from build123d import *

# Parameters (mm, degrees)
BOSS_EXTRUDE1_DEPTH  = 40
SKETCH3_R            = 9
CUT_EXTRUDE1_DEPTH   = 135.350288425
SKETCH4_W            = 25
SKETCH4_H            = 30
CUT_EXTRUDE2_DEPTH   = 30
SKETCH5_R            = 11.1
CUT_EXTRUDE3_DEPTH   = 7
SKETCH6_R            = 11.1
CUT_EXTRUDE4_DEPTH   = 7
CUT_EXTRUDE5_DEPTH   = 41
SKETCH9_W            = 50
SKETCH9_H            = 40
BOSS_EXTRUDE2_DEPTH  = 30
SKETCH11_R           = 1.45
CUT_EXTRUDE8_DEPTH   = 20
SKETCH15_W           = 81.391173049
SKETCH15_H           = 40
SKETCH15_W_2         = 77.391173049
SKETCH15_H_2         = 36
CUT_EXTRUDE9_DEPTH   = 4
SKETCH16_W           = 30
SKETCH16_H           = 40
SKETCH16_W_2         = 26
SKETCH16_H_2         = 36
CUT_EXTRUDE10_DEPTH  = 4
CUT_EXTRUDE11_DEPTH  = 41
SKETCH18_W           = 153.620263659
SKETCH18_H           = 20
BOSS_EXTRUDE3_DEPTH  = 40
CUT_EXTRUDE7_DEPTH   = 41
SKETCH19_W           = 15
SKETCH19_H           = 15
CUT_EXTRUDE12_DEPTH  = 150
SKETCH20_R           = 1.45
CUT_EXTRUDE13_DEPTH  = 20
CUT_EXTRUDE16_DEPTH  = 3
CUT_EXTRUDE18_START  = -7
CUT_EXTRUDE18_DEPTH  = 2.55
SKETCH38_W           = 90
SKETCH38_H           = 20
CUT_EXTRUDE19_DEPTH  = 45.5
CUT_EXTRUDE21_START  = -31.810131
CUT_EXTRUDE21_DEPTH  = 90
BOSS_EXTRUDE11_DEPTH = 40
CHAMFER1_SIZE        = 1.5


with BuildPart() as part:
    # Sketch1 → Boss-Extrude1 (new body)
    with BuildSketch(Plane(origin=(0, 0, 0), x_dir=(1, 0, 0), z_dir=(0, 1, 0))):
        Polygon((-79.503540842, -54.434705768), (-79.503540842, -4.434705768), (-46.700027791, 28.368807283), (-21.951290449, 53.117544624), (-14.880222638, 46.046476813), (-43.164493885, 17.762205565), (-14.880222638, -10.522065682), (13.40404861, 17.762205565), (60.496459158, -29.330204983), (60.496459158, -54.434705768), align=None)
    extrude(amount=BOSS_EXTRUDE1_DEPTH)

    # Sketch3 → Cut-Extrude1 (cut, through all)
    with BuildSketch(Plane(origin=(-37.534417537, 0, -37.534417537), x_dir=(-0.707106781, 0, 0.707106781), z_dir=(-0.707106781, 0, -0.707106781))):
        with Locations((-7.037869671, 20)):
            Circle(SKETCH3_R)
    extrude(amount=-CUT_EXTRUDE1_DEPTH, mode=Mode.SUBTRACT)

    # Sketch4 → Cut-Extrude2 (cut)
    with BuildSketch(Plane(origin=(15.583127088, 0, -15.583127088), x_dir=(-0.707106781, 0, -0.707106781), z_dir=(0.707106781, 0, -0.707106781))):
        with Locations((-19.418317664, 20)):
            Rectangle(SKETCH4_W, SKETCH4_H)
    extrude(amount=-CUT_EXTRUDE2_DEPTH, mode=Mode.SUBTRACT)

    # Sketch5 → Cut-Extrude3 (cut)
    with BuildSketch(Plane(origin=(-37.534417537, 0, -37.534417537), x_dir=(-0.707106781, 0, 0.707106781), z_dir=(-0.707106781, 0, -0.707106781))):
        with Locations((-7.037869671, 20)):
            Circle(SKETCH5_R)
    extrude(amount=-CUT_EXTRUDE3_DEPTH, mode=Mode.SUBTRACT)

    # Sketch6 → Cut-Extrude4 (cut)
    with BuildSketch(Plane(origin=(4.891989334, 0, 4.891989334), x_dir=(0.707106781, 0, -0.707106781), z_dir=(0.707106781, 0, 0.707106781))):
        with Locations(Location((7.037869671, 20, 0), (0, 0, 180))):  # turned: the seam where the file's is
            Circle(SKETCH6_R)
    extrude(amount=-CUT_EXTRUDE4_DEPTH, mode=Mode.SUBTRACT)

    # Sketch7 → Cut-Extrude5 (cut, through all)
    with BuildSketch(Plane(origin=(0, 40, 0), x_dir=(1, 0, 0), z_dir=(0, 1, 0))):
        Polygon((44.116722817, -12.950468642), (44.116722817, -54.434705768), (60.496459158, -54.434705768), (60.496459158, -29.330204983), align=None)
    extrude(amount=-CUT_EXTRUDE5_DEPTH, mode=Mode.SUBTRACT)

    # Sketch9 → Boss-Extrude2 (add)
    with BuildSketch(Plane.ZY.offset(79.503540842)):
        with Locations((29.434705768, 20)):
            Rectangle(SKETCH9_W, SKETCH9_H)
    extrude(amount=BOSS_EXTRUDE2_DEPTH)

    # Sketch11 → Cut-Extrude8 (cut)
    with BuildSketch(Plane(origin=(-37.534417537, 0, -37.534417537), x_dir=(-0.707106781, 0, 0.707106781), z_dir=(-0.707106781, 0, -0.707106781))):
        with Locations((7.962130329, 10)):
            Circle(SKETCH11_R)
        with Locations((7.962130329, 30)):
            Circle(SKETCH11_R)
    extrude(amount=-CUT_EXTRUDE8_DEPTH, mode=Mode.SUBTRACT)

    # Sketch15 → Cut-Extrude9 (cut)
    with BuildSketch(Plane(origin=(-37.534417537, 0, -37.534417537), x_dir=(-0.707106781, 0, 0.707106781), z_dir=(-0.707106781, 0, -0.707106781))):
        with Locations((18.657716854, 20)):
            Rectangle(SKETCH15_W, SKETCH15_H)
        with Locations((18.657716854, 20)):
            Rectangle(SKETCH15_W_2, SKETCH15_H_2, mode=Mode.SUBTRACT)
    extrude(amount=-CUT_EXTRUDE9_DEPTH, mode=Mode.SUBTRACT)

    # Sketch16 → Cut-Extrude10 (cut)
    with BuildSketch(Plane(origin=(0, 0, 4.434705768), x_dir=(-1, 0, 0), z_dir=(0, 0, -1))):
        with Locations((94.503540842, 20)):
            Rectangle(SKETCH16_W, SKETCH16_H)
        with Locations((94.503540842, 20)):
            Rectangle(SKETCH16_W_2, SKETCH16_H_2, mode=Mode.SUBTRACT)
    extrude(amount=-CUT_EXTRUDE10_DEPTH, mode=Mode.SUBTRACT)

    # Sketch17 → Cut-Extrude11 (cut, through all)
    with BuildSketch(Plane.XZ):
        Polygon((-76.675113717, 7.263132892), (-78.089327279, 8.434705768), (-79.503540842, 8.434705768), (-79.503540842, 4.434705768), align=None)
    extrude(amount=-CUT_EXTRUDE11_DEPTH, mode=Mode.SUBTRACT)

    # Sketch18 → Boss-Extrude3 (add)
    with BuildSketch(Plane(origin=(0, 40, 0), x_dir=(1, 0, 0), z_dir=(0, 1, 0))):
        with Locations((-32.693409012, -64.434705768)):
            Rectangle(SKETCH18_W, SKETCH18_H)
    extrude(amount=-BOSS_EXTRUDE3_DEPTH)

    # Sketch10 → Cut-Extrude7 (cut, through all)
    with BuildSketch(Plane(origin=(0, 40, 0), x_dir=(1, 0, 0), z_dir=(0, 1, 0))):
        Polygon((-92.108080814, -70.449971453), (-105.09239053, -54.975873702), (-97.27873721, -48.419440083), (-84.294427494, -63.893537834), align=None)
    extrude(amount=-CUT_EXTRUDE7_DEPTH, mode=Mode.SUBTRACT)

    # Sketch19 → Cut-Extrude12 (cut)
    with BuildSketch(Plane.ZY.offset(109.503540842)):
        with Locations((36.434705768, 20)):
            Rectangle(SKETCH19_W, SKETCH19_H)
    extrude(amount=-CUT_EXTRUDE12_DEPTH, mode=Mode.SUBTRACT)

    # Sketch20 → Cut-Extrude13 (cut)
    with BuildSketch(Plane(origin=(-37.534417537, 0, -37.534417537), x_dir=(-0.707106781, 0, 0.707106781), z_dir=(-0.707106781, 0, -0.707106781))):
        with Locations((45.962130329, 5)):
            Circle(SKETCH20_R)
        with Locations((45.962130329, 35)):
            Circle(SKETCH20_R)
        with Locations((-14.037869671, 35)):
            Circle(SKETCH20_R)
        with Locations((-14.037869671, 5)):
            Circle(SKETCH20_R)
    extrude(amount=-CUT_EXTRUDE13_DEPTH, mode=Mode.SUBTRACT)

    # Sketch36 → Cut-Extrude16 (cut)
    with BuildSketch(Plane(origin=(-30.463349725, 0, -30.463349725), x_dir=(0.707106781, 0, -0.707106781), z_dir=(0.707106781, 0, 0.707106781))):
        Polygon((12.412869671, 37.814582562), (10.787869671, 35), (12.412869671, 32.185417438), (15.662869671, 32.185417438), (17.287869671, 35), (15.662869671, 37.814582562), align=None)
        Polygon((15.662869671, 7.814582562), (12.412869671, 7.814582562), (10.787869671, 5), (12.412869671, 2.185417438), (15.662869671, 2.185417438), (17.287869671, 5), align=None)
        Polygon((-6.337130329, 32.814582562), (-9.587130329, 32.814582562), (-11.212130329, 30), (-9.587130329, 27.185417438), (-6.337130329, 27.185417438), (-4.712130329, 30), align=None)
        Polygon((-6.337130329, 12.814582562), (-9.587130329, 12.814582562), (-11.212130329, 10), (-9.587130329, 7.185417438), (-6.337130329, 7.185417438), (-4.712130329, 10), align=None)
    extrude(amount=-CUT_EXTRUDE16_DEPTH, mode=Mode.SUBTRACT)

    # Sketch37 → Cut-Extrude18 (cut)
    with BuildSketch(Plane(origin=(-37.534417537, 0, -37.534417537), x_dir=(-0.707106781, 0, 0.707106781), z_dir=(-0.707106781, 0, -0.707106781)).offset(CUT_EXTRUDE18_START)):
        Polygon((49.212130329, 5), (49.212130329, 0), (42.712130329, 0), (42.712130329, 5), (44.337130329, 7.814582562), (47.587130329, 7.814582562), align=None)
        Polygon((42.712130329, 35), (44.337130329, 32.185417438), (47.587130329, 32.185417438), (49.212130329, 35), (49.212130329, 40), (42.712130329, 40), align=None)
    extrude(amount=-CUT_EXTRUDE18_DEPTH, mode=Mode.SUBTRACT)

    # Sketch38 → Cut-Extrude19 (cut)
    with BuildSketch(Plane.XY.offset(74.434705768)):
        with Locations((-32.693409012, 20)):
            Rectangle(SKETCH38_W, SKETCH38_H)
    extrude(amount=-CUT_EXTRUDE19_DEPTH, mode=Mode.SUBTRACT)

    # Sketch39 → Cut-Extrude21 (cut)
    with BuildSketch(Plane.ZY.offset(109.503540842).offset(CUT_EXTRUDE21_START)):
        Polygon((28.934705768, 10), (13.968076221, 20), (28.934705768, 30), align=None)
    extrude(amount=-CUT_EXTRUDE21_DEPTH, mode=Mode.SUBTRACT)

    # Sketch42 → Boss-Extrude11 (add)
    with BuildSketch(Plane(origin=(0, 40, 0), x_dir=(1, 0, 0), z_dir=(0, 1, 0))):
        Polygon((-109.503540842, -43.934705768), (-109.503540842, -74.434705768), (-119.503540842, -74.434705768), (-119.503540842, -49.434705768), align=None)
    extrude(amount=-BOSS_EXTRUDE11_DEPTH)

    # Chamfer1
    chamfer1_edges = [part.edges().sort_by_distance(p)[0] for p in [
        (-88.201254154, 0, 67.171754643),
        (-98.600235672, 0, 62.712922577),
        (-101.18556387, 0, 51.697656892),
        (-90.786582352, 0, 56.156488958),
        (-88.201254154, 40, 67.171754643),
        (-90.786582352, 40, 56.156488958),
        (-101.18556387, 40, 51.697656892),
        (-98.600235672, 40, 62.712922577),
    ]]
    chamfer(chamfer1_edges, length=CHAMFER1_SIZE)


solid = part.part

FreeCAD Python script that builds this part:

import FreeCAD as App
import Part
import Sketcher

V = App.Vector
Q = App.Units.Quantity


def edges_at(feature, points):
    """Names of the edges that pass closest to the given points."""
    edges = feature.Shape.Edges
    near = lambda p: min(range(len(edges)), key=lambda i: edges[i].distToShape(Part.Vertex(*p))[0])
    return sorted({f"Edge{near(p) + 1}" for p in points})

doc = App.newDocument("Part")
params = doc.addObject("Spreadsheet::Sheet", "Params")
for row, (alias, value) in enumerate([
    ("sketch1_width", "140 mm"),
    ("sketch1_height", "50 mm"),
    ("sketch1_length", "40 mm"),
    ("sketch1_length2", "10 mm"),
    ("sketch1_length3", "35 mm"),
    ("pad1_length", "40 mm"),
    ("sketch2_diameter", "18 mm"),
    ("sketch3_width", "25 mm"),
    ("sketch3_height", "30 mm"),
    ("pocket2_length", "30 mm"),
    ("sketch4_diameter", "22.2 mm"),
    ("pocket3_length", "7 mm"),
    ("sketch5_diameter", "22.2 mm"),
    ("pocket4_length", "7 mm"),
    ("sketch7_width", "40 mm"),
    ("sketch7_height", "50 mm"),
    ("pad2_length", "30 mm"),
    ("sketch8_diameter", "2.9 mm"),
    ("pocket6_length", "20 mm"),
    ("sketch9_height", "40 mm"),
    ("sketch9_height2", "36 mm"),
    ("pocket7_length", "4 mm"),
    ("sketch10_width", "30 mm"),
    ("sketch10_width2", "26 mm"),
    ("sketch10_height", "40 mm"),
    ("sketch10_height2", "36 mm"),
    ("pocket8_length", "4 mm"),
    ("sketch11_height", "4 mm"),
    ("sketch11_length", "4 mm"),
    ("sketch12_height", "20 mm"),
    ("pad3_length", "40 mm"),
    ("sketch13_length", "20.2 mm"),
    ("sketch13_length2", "10.2 mm"),
    ("sketch14_width", "15 mm"),
    ("pocket11_length", "150 mm"),
    ("sketch15_diameter", "2.9 mm"),
    ("pocket12_length", "20 mm"),
    ("sketch16_width", "3.25 mm"),
    ("pocket13_length", "3 mm"),
    ("sketch17_height", "5 mm"),
    ("sketch17_width", "6.5 mm"),
    ("sketch17_width2", "3.25 mm"),
    ("pocket14_length", "2.55 mm"),
    ("sketch18_width", "90 mm"),
    ("sketch18_height", "20 mm"),
    ("pocket15_length", "45.5 mm"),
    ("sketch19_width", "20 mm"),
    ("sketch19_length", "18 mm"),
    ("pocket16_length", "90 mm"),
    ("sketch20_width", "10 mm"),
    ("sketch20_height", "25 mm"),
    ("sketch20_height2", "30.5 mm"),
    ("pad4_length", "40 mm"),
    ("chamfer_size", "1.5 mm"),
], start=1):
    params.set(f"A{row}", alias)
    params.set(f"B{row}", "=" + value)
    params.setAlias(f"B{row}", alias)

body = doc.addObject("PartDesign::Body", "Body")

# Sketch on XZ plane
sketch1 = doc.addObject("Sketcher::SketchObject", "Sketch")
body.addObject(sketch1)
sketch1.AttachmentSupport = (doc.XZ_Plane, [""])
sketch1.MapMode = "FlatFace"
sketch1.addGeometry(Part.LineSegment(V(-79.503541, 4.434706, 0), V(-79.503541, 54.434706, 0)), False)
sketch1.addGeometry(Part.LineSegment(V(-79.503541, 54.434706, 0), V(60.496459, 54.434706, 0)), False)
sketch1.addGeometry(Part.LineSegment(V(60.496459, 54.434706, 0), V(60.496459, 29.330205, 0)), False)
sketch1.addGeometry(Part.LineSegment(V(60.496459, 29.330205, 0), V(13.404049, -17.762206, 0)), False)
sketch1.addGeometry(Part.LineSegment(V(13.404049, -17.762206, 0), V(-14.880223, 10.522066, 0)), False)
sketch1.addGeometry(Part.LineSegment(V(-14.880223, 10.522066, 0), V(-43.164494, -17.762206, 0)), False)
sketch1.addGeometry(Part.LineSegment(V(-43.164494, -17.762206, 0), V(-14.880223, -46.046477, 0)), False)
sketch1.addGeometry(Part.LineSegment(V(-14.880223, -46.046477, 0), V(-21.95129, -53.117545, 0)), False)
sketch1.addGeometry(Part.LineSegment(V(-21.95129, -53.117545, 0), V(-46.700028, -28.368807, 0)), False)
sketch1.addGeometry(Part.LineSegment(V(-46.700028, -28.368807, 0), V(-79.503541, 4.434706, 0)), False)
sketch1.addConstraint(Sketcher.Constraint("Coincident", 0, 2, 1, 1))
sketch1.addConstraint(Sketcher.Constraint("Coincident", 1, 2, 2, 1))
sketch1.addConstraint(Sketcher.Constraint("Coincident", 2, 2, 3, 1))
sketch1.addConstraint(Sketcher.Constraint("Coincident", 3, 2, 4, 1))
sketch1.addConstraint(Sketcher.Constraint("Coincident", 4, 2, 5, 1))
sketch1.addConstraint(Sketcher.Constraint("Coincident", 5, 2, 6, 1))
sketch1.addConstraint(Sketcher.Constraint("Coincident", 6, 2, 7, 1))
sketch1.addConstraint(Sketcher.Constraint("Coincident", 7, 2, 8, 1))
sketch1.addConstraint(Sketcher.Constraint("Coincident", 8, 2, 9, 1))
sketch1.addConstraint(Sketcher.Constraint("Coincident", 9, 2, 0, 1))
sketch1.addConstraint(Sketcher.Constraint("Vertical", 0))
sketch1.addConstraint(Sketcher.Constraint("Horizontal", 1))
sketch1.addConstraint(Sketcher.Constraint("Vertical", 2))
sketch1.addConstraint(Sketcher.Constraint("Perpendicular", 3, 4))
sketch1.addConstraint(Sketcher.Constraint("Perpendicular", 4, 5))
sketch1.addConstraint(Sketcher.Constraint("Perpendicular", 5, 6))
sketch1.addConstraint(Sketcher.Constraint("Perpendicular", 6, 7))
sketch1.addConstraint(Sketcher.Constraint("Perpendicular", 7, 8))
sketch1.addConstraint(Sketcher.Constraint("Parallel", 8, 9))
sketch1.addConstraint(Sketcher.Constraint("Horizontal", 3, 2, 5, 2))
sketch1.addConstraint(Sketcher.Constraint("Vertical", 4, 2, 6, 2))
sketch1.addConstraint(Sketcher.Constraint("Equal", 4, 5))
sketch1.addConstraint(Sketcher.Constraint("DistanceX", 1, 1, 1, 2, Q("140 mm")))
sketch1.addConstraint(Sketcher.Constraint("DistanceY", 0, 1, 0, 2, Q("50 mm")))
sketch1.addConstraint(Sketcher.Constraint("Distance", 4, Q("40 mm")))
sketch1.addConstraint(Sketcher.Constraint("Distance", 7, Q("10 mm")))
sketch1.addConstraint(Sketcher.Constraint("Distance", 8, Q("35 mm")))
sketch1.addConstraint(Sketcher.Constraint("DistanceY", 2, 2, 2, 1, Q("25.104501 mm")))
sketch1.addConstraint(Sketcher.Constraint("DistanceX", 0, 2, -1, 1, Q("79.503541 mm")))
sketch1.addConstraint(Sketcher.Constraint("DistanceY", -1, 1, 0, 2, Q("54.434706 mm")))
sketch1.setExpression("Constraints[22]", "Params.sketch1_width")
sketch1.setExpression("Constraints[23]", "Params.sketch1_height")
sketch1.setExpression("Constraints[24]", "Params.sketch1_length")
sketch1.setExpression("Constraints[25]", "Params.sketch1_length2")
sketch1.setExpression("Constraints[26]", "Params.sketch1_length3")
pad1 = doc.addObject("PartDesign::Pad", "Pad")
body.addObject(pad1)
pad1.Profile = sketch1
pad1.setExpression("Length", "Params.pad1_length")
pad1.Reversed = True

# Sketch on an angled plane
sketch2 = doc.addObject("Sketcher::SketchObject", "Sketch001")
body.addObject(sketch2)
sketch2.Placement = App.Placement(V(-37.534418, 0, -37.534418), App.Rotation(V(-0.707106781, 0, 0.707106781), V(0, 0.999999999, 0), V(-0.707106781, 0, -0.707106781), "ZXY"))
sketch2.addGeometry(Part.Circle(V(-7.03787, 20, 0), V(0, 0, 1), 9), False)
sketch2.addConstraint(Sketcher.Constraint("Diameter", 0, Q("18 mm")))
sketch2.addConstraint(Sketcher.Constraint("DistanceY", -1, 1, 0, 3, Q("20 mm")))
sketch2.addConstraint(Sketcher.Constraint("DistanceX", 0, 3, -1, 1, Q("7.03787 mm")))
sketch2.setExpression("Constraints[0]", "Params.sketch2_diameter")
pocket1 = doc.addObject("PartDesign::Pocket", "Pocket")
body.addObject(pocket1)
pocket1.Profile = sketch2
pocket1.Type = "ThroughAll"

# Sketch on an angled plane
sketch3 = doc.addObject("Sketcher::SketchObject", "Sketch002")
body.addObject(sketch3)
sketch3.Placement = App.Placement(V(15.583127, 0, -15.583127), App.Rotation(V(-0.707106781, 0, -0.707106781), V(0, 0.999999999, 0), V(0.707106781, 0, -0.707106781), "ZXY"))
sketch3.addGeometry(Part.LineSegment(V(-31.918318, 35, 0), V(-31.918318, 5, 0)), False)
sketch3.addGeometry(Part.LineSegment(V(-31.918318, 5, 0), V(-6.918318, 5, 0)), False)
sketch3.addGeometry(Part.LineSegment(V(-6.918318, 5, 0), V(-6.918318, 35, 0)), False)
sketch3.addGeometry(Part.LineSegment(V(-6.918318, 35, 0), V(-31.918318, 35, 0)), False)
sketch3.addConstraint(Sketcher.Constraint("Coincident", 0, 2, 1, 1))
sketch3.addConstraint(Sketcher.Constraint("Coincident", 1, 2, 2, 1))
sketch3.addConstraint(Sketcher.Constraint("Coincident", 2, 2, 3, 1))
sketch3.addConstraint(Sketcher.Constraint("Coincident", 3, 2, 0, 1))
sketch3.addConstraint(Sketcher.Constraint("Vertical", 0))
sketch3.addConstraint(Sketcher.Constraint("Horizontal", 1))
sketch3.addConstraint(Sketcher.Constraint("Vertical", 2))
sketch3.addConstraint(Sketcher.Constraint("Horizontal", 3))
sketch3.addConstraint(Sketcher.Constraint("DistanceX", 1, 1, 1, 2, Q("25 mm")))
sketch3.addConstraint(Sketcher.Constraint("DistanceY", 0, 2, 0, 1, Q("30 mm")))
sketch3.addConstraint(Sketcher.Constraint("DistanceY", -1, 1, 0, 2, Q("5 mm")))
sketch3.addConstraint(Sketcher.Constraint("DistanceX", 0, 2, -1, 1, Q("31.918318 mm")))
sketch3.setExpression("Constraints[8]", "Params.sketch3_width")
sketch3.setExpression("Constraints[9]", "Params.sketch3_height")
pocket2 = doc.addObject("PartDesign::Pocket", "Pocket001")
body.addObject(pocket2)
pocket2.Profile = sketch3
pocket2.setExpression("Length", "Params.pocket2_length")

# Sketch on an angled plane
sketch4 = doc.addObject("Sketcher::SketchObject", "Sketch003")
body.addObject(sketch4)
sketch4.Placement = App.Placement(V(-37.534418, 0, -37.534418), App.Rotation(V(-0.707106781, 0, 0.707106781), V(0, 0.999999999, 0), V(-0.707106781, 0, -0.707106781), "ZXY"))
sketch4.addGeometry(Part.Circle(V(-7.03787, 20, 0), V(0, 0, 1), 11.1), False)
sketch4.addConstraint(Sketcher.Constraint("Diameter", 0, Q("22.2 mm")))
sketch4.addConstraint(Sketcher.Constraint("DistanceY", -1, 1, 0, 3, Q("20 mm")))
sketch4.addConstraint(Sketcher.Constraint("DistanceX", 0, 3, -1, 1, Q("7.03787 mm")))
sketch4.setExpression("Constraints[0]", "Params.sketch4_diameter")
pocket3 = doc.addObject("PartDesign::Pocket", "Pocket002")
body.addObject(pocket3)
pocket3.Profile = sketch4
pocket3.setExpression("Length", "Params.pocket3_length")

# Sketch on an angled plane
sketch5 = doc.addObject("Sketcher::SketchObject", "Sketch004")
body.addObject(sketch5)
sketch5.Placement = App.Placement(V(4.891989, 0, 4.891989), App.Rotation(V(0.707106781, 0, -0.707106781), V(0, 0.999999999, 0), V(0.707106781, 0, 0.707106781), "ZXY"))
sketch5.addGeometry(Part.Circle(V(7.03787, 20, 0), V(0, 0, 1), 11.1), False)
sketch5.addConstraint(Sketcher.Constraint("Diameter", 0, Q("22.2 mm")))
sketch5.addConstraint(Sketcher.Constraint("DistanceY", -1, 1, 0, 3, Q("20 mm")))
sketch5.addConstraint(Sketcher.Constraint("DistanceX", -1, 1, 0, 3, Q("7.03787 mm")))
sketch5.setExpression("Constraints[0]", "Params.sketch5_diameter")
pocket4 = doc.addObject("PartDesign::Pocket", "Pocket003")
body.addObject(pocket4)
pocket4.Profile = sketch5
pocket4.setExpression("Length", "Params.pocket4_length")

# Sketch on XZ plane
sketch6 = doc.addObject("Sketcher::SketchObject", "Sketch005")
body.addObject(sketch6)
sketch6.AttachmentSupport = (doc.XZ_Plane, [""])
sketch6.MapMode = "FlatFace"
sketch6.AttachmentOffset = App.Placement(V(0, 0, -40), App.Rotation())
sketch6.addGeometry(Part.LineSegment(V(44.116723, 12.950469, 0), V(44.116723, 54.434706, 0)), False)
sketch6.addGeometry(Part.LineSegment(V(44.116723, 54.434706, 0), V(60.496459, 54.434706, 0)), False)
sketch6.addGeometry(Part.LineSegment(V(60.496459, 54.434706, 0), V(60.496459, 29.330205, 0)), False)
sketch6.addGeometry(Part.LineSegment(V(60.496459, 29.330205, 0), V(44.116723, 12.950469, 0)), False)
sketch6.addConstraint(Sketcher.Constraint("Coincident", 0, 2, 1, 1))
sketch6.addConstraint(Sketcher.Constraint("Coincident", 1, 2, 2, 1))
sketch6.addConstraint(Sketcher.Constraint("Coincident", 2, 2, 3, 1))
sketch6.addConstraint(Sketcher.Constraint("Coincident", 3, 2, 0, 1))
sketch6.addConstraint(Sketcher.Constraint("Vertical", 0))
sketch6.addConstraint(Sketcher.Constraint("Horizontal", 1))
sketch6.addConstraint(Sketcher.Constraint("Vertical", 2))
sketch6.addConstraint(Sketcher.Constraint("Angle", 3, Q("-135 deg")))
sketch6.addConstraint(Sketcher.Constraint("DistanceY", 2, 2, 2, 1, Q("25.104501 mm")))
sketch6.addConstraint(Sketcher.Constraint("DistanceX", 1, 1, 1, 2, Q("16.379736 mm")))
sketch6.addConstraint(Sketcher.Constraint("DistanceX", -1, 1, 1, 2, Q("60.496459 mm")))
sketch6.addConstraint(Sketcher.Constraint("DistanceY", -1, 1, 3, 2, Q("12.950469 mm")))
pocket5 = doc.addObject("PartDesign::Pocket", "Pocket004")
body.addObject(pocket5)
pocket5.Profile = sketch6
pocket5.Type = "ThroughAll"
pocket5.Reversed = True

# Sketch on YZ plane
sketch7 = doc.addObject("Sketcher::SketchObject", "Sketch006")
body.addObject(sketch7)
sketch7.AttachmentSupport = (doc.YZ_Plane, [""])
sketch7.MapMode = "FlatFace"
sketch7.AttachmentOffset = App.Placement(V(0, 0, -79.503541), App.Rotation())
sketch7.addGeometry(Part.LineSegment(V(40, 4.434706, 0), V(0, 4.434706, 0)), False)
sketch7.addGeometry(Part.LineSegment(V(0, 4.434706, 0), V(0, 54.434706, 0)), False)
sketch7.addGeometry(Part.LineSegment(V(0, 54.434706, 0), V(40, 54.434706, 0)), False)
sketch7.addGeometry(Part.LineSegment(V(40, 54.434706, 0), V(40, 4.434706, 0)), False)
sketch7.addConstraint(Sketcher.Constraint("Coincident", 0, 2, 1, 1))
sketch7.addConstraint(Sketcher.Constraint("Coincident", 1, 2, 2, 1))
sketch7.addConstraint(Sketcher.Constraint("Coincident", 2, 2, 3, 1))
sketch7.addConstraint(Sketcher.Constraint("Coincident", 3, 2, 0, 1))
sketch7.addConstraint(Sketcher.Constraint("Horizontal", 0))
sketch7.addConstraint(Sketcher.Constraint("Vertical", 1))
sketch7.addConstraint(Sketcher.Constraint("Horizontal", 2))
sketch7.addConstraint(Sketcher.Constraint("Vertical", 3))
sketch7.addConstraint(Sketcher.Constraint("PointOnObject", 0, 2, -2))
sketch7.addConstraint(Sketcher.Constraint("DistanceX", 0, 2, 0, 1, Q("40 mm")))
sketch7.addConstraint(Sketcher.Constraint("DistanceY", 1, 1, 1, 2, Q("50 mm")))
sketch7.addConstraint(Sketcher.Constraint("DistanceY", -1, 1, 0, 2, Q("4.434706 mm")))
sketch7.setExpression("Constraints[9]", "Params.sketch7_width")
sketch7.setExpression("Constraints[10]", "Params.sketch7_height")
pad2 = doc.addObject("PartDesign::Pad", "Pad001")
body.addObject(pad2)
pad2.Profile = sketch7
pad2.setExpression("Length", "Params.pad2_length")
pad2.Reversed = True

# Sketch on an angled plane
sketch8 = doc.addObject("Sketcher::SketchObject", "Sketch007")
body.addObject(sketch8)
sketch8.Placement = App.Placement(V(-37.534418, 0, -37.534418), App.Rotation(V(-0.707106781, 0, 0.707106781), V(0, 0.999999999, 0), V(-0.707106781, 0, -0.707106781), "ZXY"))
sketch8.addGeometry(Part.Circle(V(7.96213, 10, 0), V(0, 0, 1), 1.45), False)
sketch8.addGeometry(Part.Circle(V(7.96213, 30, 0), V(0, 0, 1), 1.45), False)
sketch8.addConstraint(Sketcher.Constraint("Equal", 0, 1))
sketch8.addConstraint(Sketcher.Constraint("Vertical", 0, 3, 1, 3))
sketch8.addConstraint(Sketcher.Constraint("Diameter", 0, Q("2.9 mm")))
sketch8.addConstraint(Sketcher.Constraint("DistanceY", -1, 1, 0, 3, Q("10 mm")))
sketch8.addConstraint(Sketcher.Constraint("DistanceY", -1, 1, 1, 3, Q("30 mm")))
sketch8.addConstraint(Sketcher.Constraint("DistanceX", -1, 1, 0, 3, Q("7.96213 mm")))
sketch8.setExpression("Constraints[2]", "Params.sketch8_diameter")
pocket6 = doc.addObject("PartDesign::Pocket", "Pocket005")
body.addObject(pocket6)
pocket6.Profile = sketch8
pocket6.setExpression("Length", "Params.pocket6_length")

# Sketch on an angled plane
sketch9 = doc.addObject("Sketcher::SketchObject", "Sketch008")
body.addObject(sketch9)
sketch9.Placement = App.Placement(V(-37.534418, 0, -37.534418), App.Rotation(V(-0.707106781, 0, 0.707106781), V(0, 0.999999999, 0), V(-0.707106781, 0, -0.707106781), "ZXY"))
sketch9.addGeometry(Part.LineSegment(V(-22.03787, 40, 0), V(-22.03787, 0, 0)), False)
sketch9.addGeometry(Part.LineSegment(V(-22.03787, 0, 0), V(59.353303, 0, 0)), False)
sketch9.addGeometry(Part.LineSegment(V(59.353303, 0, 0), V(59.353303, 40, 0)), False)
sketch9.addGeometry(Part.LineSegment(V(59.353303, 40, 0), V(-22.03787, 40, 0)), False)
sketch9.addGeometry(Part.LineSegment(V(57.353303, 2, 0), V(-20.03787, 2, 0)), False)
sketch9.addGeometry(Part.LineSegment(V(-20.03787, 2, 0), V(-20.03787, 38, 0)), False)
sketch9.addGeometry(Part.LineSegment(V(-20.03787, 38, 0), V(57.353303, 38, 0)), False)
sketch9.addGeometry(Part.LineSegment(V(57.353303, 38, 0), V(57.353303, 2, 0)), False)
sketch9.addConstraint(Sketcher.Constraint("Coincident", 0, 2, 1, 1))
sketch9.addConstraint(Sketcher.Constraint("Coincident", 1, 2, 2, 1))
sketch9.addConstraint(Sketcher.Constraint("Coincident", 2, 2, 3, 1))
sketch9.addConstraint(Sketcher.Constraint("Coincident", 3, 2, 0, 1))
sketch9.addConstraint(Sketcher.Constraint("Coincident", 4, 2, 5, 1))
sketch9.addConstraint(Sketcher.Constraint("Coincident", 5, 2, 6, 1))
sketch9.addConstraint(Sketcher.Constraint("Coincident", 6, 2, 7, 1))
sketch9.addConstraint(Sketcher.Constraint("Coincident", 7, 2, 4, 1))
sketch9.addConstraint(Sketcher.Constraint("Vertical", 0))
sketch9.addConstraint(Sketcher.Constraint("Horizontal", 1))
sketch9.addConstraint(Sketcher.Constraint("Vertical", 2))
sketch9.addConstraint(Sketcher.Constraint("Horizontal", 3))
sketch9.addConstraint(Sketcher.Constraint("Horizontal", 4))
sketch9.addConstraint(Sketcher.Constraint("Vertical", 5))
sketch9.addConstraint(Sketcher.Constraint("Horizontal", 6))
sketch9.addConstraint(Sketcher.Constraint("Vertical", 7))
sketch9.addConstraint(Sketcher.Constraint("PointOnObject", 0, 2, -1))
sketch9.addConstraint(Sketcher.Constraint("DistanceY", 0, 2, 0, 1, Q("40 mm")))
sketch9.addConstraint(Sketcher.Constraint("DistanceY", 5, 1, 5, 2, Q("36 mm")))
sketch9.addConstraint(Sketcher.Constraint("DistanceY", -1, 1, 4, 2, Q("2 mm")))
sketch9.addConstraint(Sketcher.Constraint("DistanceX", 0, 2, 4, 2, Q("2 mm")))
sketch9.addConstraint(Sketcher.Constraint("DistanceX", 6, 2, 2, 2, Q("2 mm")))
sketch9.addConstraint(Sketcher.Constraint("DistanceX", 1, 1, 1, 2, Q("81.391173 mm")))
sketch9.addConstraint(Sketcher.Constraint("DistanceX", 0, 2, -1, 1, Q("22.03787 mm")))
sketch9.setExpression("Constraints[17]", "Params.sketch9_height")
sketch9.setExpression("Constraints[18]", "Params.sketch9_height2")
pocket7 = doc.addObject("PartDesign::Pocket", "Pocket006")
body.addObject(pocket7)
pocket7.Profile = sketch9
pocket7.setExpression("Length", "Params.pocket7_length")

# Sketch on XY plane
sketch10 = doc.addObject("Sketcher::SketchObject", "Sketch009")
body.addObject(sketch10)
sketch10.AttachmentSupport = (doc.XY_Plane, [""])
sketch10.MapMode = "FlatFace"
sketch10.AttachmentOffset = App.Placement(V(0, 0, 4.434706), App.Rotation())
sketch10.addGeometry(Part.LineSegment(V(-79.503541, 40, 0), V(-79.503541, 0, 0)), False)
sketch10.addGeometry(Part.LineSegment(V(-79.503541, 0, 0), V(-109.503541, 0, 0)), False)
sketch10.addGeometry(Part.LineSegment(V(-109.503541, 0, 0), V(-109.503541, 40, 0)), False)
sketch10.addGeometry(Part.LineSegment(V(-109.503541, 40, 0), V(-79.503541, 40, 0)), False)
sketch10.addGeometry(Part.LineSegment(V(-107.503541, 2, 0), V(-81.503541, 2, 0)), False)
sketch10.addGeometry(Part.LineSegment(V(-81.503541, 2, 0), V(-81.503541, 38, 0)), False)
sketch10.addGeometry(Part.LineSegment(V(-81.503541, 38, 0), V(-107.503541, 38, 0)), False)
sketch10.addGeometry(Part.LineSegment(V(-107.503541, 38, 0), V(-107.503541, 2, 0)), False)
sketch10.addConstraint(Sketcher.Constraint("Coincident", 0, 2, 1, 1))
sketch10.addConstraint(Sketcher.Constraint("Coincident", 1, 2, 2, 1))
sketch10.addConstraint(Sketcher.Constraint("Coincident", 2, 2, 3, 1))
sketch10.addConstraint(Sketcher.Constraint("Coincident", 3, 2, 0, 1))
sketch10.addConstraint(Sketcher.Constraint("Coincident", 4, 2, 5, 1))
sketch10.addConstraint(Sketcher.Constraint("Coincident", 5, 2, 6, 1))
sketch10.addConstraint(Sketcher.Constraint("Coincident", 6, 2, 7, 1))
sketch10.addConstraint(Sketcher.Constraint("Coincident", 7, 2, 4, 1))
sketch10.addConstraint(Sketcher.Constraint("Vertical", 0))
sketch10.addConstraint(Sketcher.Constraint("Horizontal", 1))
sketch10.addConstraint(Sketcher.Constraint("Vertical", 2))
sketch10.addConstraint(Sketcher.Constraint("Horizontal", 3))
sketch10.addConstraint(Sketcher.Constraint("Horizontal", 4))
sketch10.addConstraint(Sketcher.Constraint("Vertical", 5))
sketch10.addConstraint(Sketcher.Constraint("Horizontal", 6))
sketch10.addConstraint(Sketcher.Constraint("Vertical", 7))
sketch10.addConstraint(Sketcher.Constraint("PointOnObject", 0, 2, -1))
sketch10.addConstraint(Sketcher.Constraint("DistanceX", 1, 2, 1, 1, Q("30 mm")))
sketch10.addConstraint(Sketcher.Constraint("DistanceX", 4, 1, 4, 2, Q("26 mm")))
sketch10.addConstraint(Sketcher.Constraint("DistanceY", 0, 2, 0, 1, Q("40 mm")))
sketch10.addConstraint(Sketcher.Constraint("DistanceY", 5, 1, 5, 2, Q("36 mm")))
sketch10.addConstraint(Sketcher.Constraint("DistanceY", -1, 1, 4, 2, Q("2 mm")))
sketch10.addConstraint(Sketcher.Constraint("DistanceX", 4, 2, 0, 2, Q("2 mm")))
sketch10.addConstraint(Sketcher.Constraint("DistanceX", 0, 2, -1, 1, Q("79.503541 mm")))
sketch10.setExpression("Constraints[17]", "Params.sketch10_width")
sketch10.setExpression("Constraints[18]", "Params.sketch10_width2")
sketch10.setExpression("Constraints[19]", "Params.sketch10_height")
sketch10.setExpression("Constraints[20]", "Params.sketch10_height2")
pocket8 = doc.addObject("PartDesign::Pocket", "Pocket007")
body.addObject(pocket8)
pocket8.Profile = sketch10
pocket8.setExpression("Length", "Params.pocket8_length")
pocket8.Reversed = True

# Sketch on XZ plane
sketch11 = doc.addObject("Sketcher::SketchObject", "Sketch010")
body.addObject(sketch11)
sketch11.AttachmentSupport = (doc.XZ_Plane, [""])
sketch11.MapMode = "FlatFace"
sketch11.addGeometry(Part.LineSegment(V(-76.675114, 7.263133, 0), V(-78.089327, 8.434706, 0)), False)
sketch11.addGeometry(Part.LineSegment(V(-78.089327, 8.434706, 0), V(-79.503541, 8.434706, 0)), False)
sketch11.addGeometry(Part.LineSegment(V(-79.503541, 8.434706, 0), V(-79.503541, 4.434706, 0)), False)
sketch11.addGeometry(Part.LineSegment(V(-79.503541, 4.434706, 0), V(-76.675114, 7.263133, 0)), False)
sketch11.addConstraint(Sketcher.Constraint("Coincident", 0, 2, 1, 1))
sketch11.addConstraint(Sketcher.Constraint("Coincident", 1, 2, 2, 1))
sketch11.addConstraint(Sketcher.Constraint("Coincident", 2, 2, 3, 1))
sketch11.addConstraint(Sketcher.Constraint("Coincident", 3, 2, 0, 1))
sketch11.addConstraint(Sketcher.Constraint("Horizontal", 1))
sketch11.addConstraint(Sketcher.Constraint("Vertical", 2))
sketch11.addConstraint(Sketcher.Constraint("DistanceY", 2, 2, 2, 1, Q("4 mm")))
sketch11.addConstraint(Sketcher.Constraint("Angle", 3, Q("45 deg")))
sketch11.addConstraint(Sketcher.Constraint("Distance", 3, Q("4 mm")))
sketch11.addConstraint(Sketcher.Constraint("Distance", 0, Q("1.836459 mm")))
sketch11.addConstraint(Sketcher.Constraint("DistanceX", 1, 2, -1, 1, Q("79.503541 mm")))
sketch11.addConstraint(Sketcher.Constraint("DistanceY", -1, 1, 0, 2, Q("8.434706 mm")))
sketch11.setExpression("Constraints[6]", "Params.sketch11_height")
sketch11.setExpression("Constraints[8]", "Params.sketch11_length")
pocket9 = doc.addObject("PartDesign::Pocket", "Pocket008")
body.addObject(pocket9)
pocket9.Profile = sketch11
pocket9.Type = "ThroughAll"

# Sketch on XZ plane
sketch12 = doc.addObject("Sketcher::SketchObject", "Sketch011")
body.addObject(sketch12)
sketch12.AttachmentSupport = (doc.XZ_Plane, [""])
sketch12.MapMode = "FlatFace"
sketch12.AttachmentOffset = App.Placement(V(0, 0, -40), App.Rotation())
sketch12.addGeometry(Part.LineSegment(V(-109.503541, 54.434706, 0), V(-109.503541, 74.434706, 0)), False)
sketch12.addGeometry(Part.LineSegment(V(-109.503541, 74.434706, 0), V(44.116723, 74.434706, 0)), False)
sketch12.addGeometry(Part.LineSegment(V(44.116723, 74.434706, 0), V(44.116723, 54.434706, 0)), False)
sketch12.addGeometry(Part.LineSegment(V(44.116723, 54.434706, 0), V(-109.503541, 54.434706, 0)), False)
sketch12.addConstraint(Sketcher.Constraint("Coincident", 0, 2, 1, 1))
sketch12.addConstraint(Sketcher.Constraint("Coincident", 1, 2, 2, 1))
sketch12.addConstraint(Sketcher.Constraint("Coincident", 2, 2, 3, 1))
sketch12.addConstraint(Sketcher.Constraint("Coincident", 3, 2, 0, 1))
sketch12.addConstraint(Sketcher.Constraint("Vertical", 0))
sketch12.addConstraint(Sketcher.Constraint("Horizontal", 1))
sketch12.addConstraint(Sketcher.Constraint("Vertical", 2))
sketch12.addConstraint(Sketcher.Constraint("Horizontal", 3))
sketch12.addConstraint(Sketcher.Constraint("DistanceY", 0, 1, 0, 2, Q("20 mm")))
sketch12.addConstraint(Sketcher.Constraint("DistanceX", 1, 1, 1, 2, Q("153.620264 mm")))
sketch12.addConstraint(Sketcher.Constraint("DistanceX", 0, 2, -1, 1, Q("109.503541 mm")))
sketch12.addConstraint(Sketcher.Constraint("DistanceY", -1, 1, 0, 2, Q("74.434706 mm")))
sketch12.setExpression("Constraints[8]", "Params.sketch12_height")
pad3 = doc.addObject("PartDesign::Pad", "Pad002")
body.addObject(pad3)
pad3.Profile = sketch12
pad3.setExpression("Length", "Params.pad3_length")

# Sketch on XZ plane
sketch13 = doc.addObject("Sketcher::SketchObject", "Sketch012")
body.addObject(sketch13)
sketch13.AttachmentSupport = (doc.XZ_Plane, [""])
sketch13.MapMode = "FlatFace"
sketch13.AttachmentOffset = App.Placement(V(0, 0, -40), App.Rotation())
sketch13.addGeometry(Part.LineSegment(V(-105.092391, 54.975874, 0), V(-92.108081, 70.449971, 0)), False)
sketch13.addGeometry(Part.LineSegment(V(-92.108081, 70.449971, 0), V(-84.294427, 63.893538, 0)), False)
sketch13.addGeometry(Part.LineSegment(V(-84.294427, 63.893538, 0), V(-97.278737, 48.41944, 0)), False)
sketch13.addGeometry(Part.LineSegment(V(-97.278737, 48.41944, 0), V(-105.092391, 54.975874, 0)), False)
sketch13.addConstraint(Sketcher.Constraint("Coincident", 0, 2, 1, 1))
sketch13.addConstraint(Sketcher.Constraint("Coincident", 1, 2, 2, 1))
sketch13.addConstraint(Sketcher.Constraint("Coincident", 2, 2, 3, 1))
sketch13.addConstraint(Sketcher.Constraint("Coincident", 3, 2, 0, 1))
sketch13.addConstraint(Sketcher.Constraint("Perpendicular", 0, 1))
sketch13.addConstraint(Sketcher.Constraint("Perpendicular", 1, 2))
sketch13.addConstraint(Sketcher.Constraint("Perpendicular", 2, 3))
sketch13.addConstraint(Sketcher.Constraint("Angle", 0, Q("50 deg")))
sketch13.addConstraint(Sketcher.Constraint("Distance", 0, Q("20.2 mm")))
sketch13.addConstraint(Sketcher.Constraint("Distance", 1, Q("10.2 mm")))
sketch13.addConstraint(Sketcher.Constraint("DistanceX", 0, 2, -1, 1, Q("92.108081 mm")))
sketch13.addConstraint(Sketcher.Constraint("DistanceY", -1, 1, 0, 2, Q("70.449971 mm")))
sketch13.setExpression("Constraints[8]", "Params.sketch13_length")
sketch13.setExpression("Constraints[9]", "Params.sketch13_length2")
pocket10 = doc.addObject("PartDesign::Pocket", "Pocket009")
body.addObject(pocket10)
pocket10.Profile = sketch13
pocket10.Type = "ThroughAll"
pocket10.Reversed = True

# Sketch on YZ plane
sketch14 = doc.addObject("Sketcher::SketchObject", "Sketch013")
body.addObject(sketch14)
sketch14.AttachmentSupport = (doc.YZ_Plane, [""])
sketch14.MapMode = "FlatFace"
sketch14.AttachmentOffset = App.Placement(V(0, 0, -109.503541), App.Rotation())
sketch14.addGeometry(Part.LineSegment(V(27.5, 28.934706, 0), V(12.5, 28.934706, 0)), False)
sketch14.addGeometry(Part.LineSegment(V(12.5, 28.934706, 0), V(12.5, 43.934706, 0)), False)
sketch14.addGeometry(Part.LineSegment(V(12.5, 43.934706, 0), V(27.5, 43.934706, 0)), False)
sketch14.addGeometry(Part.LineSegment(V(27.5, 43.934706, 0), V(27.5, 28.934706, 0)), False)
sketch14.addConstraint(Sketcher.Constraint("Coincident", 0, 2, 1, 1))
sketch14.addConstraint(Sketcher.Constraint("Coincident", 1, 2, 2, 1))
sketch14.addConstraint(Sketcher.Constraint("Coincident", 2, 2, 3, 1))
sketch14.addConstraint(Sketcher.Constraint("Coincident", 3, 2, 0, 1))
sketch14.addConstraint(Sketcher.Constraint("Horizontal", 0))
sketch14.addConstraint(Sketcher.Constraint("Vertical", 1))
sketch14.addConstraint(Sketcher.Constraint("Horizontal", 2))
sketch14.addConstraint(Sketcher.Constraint("Vertical", 3))
sketch14.addConstraint(Sketcher.Constraint("Equal", 2, 1))
sketch14.addConstraint(Sketcher.Constraint("DistanceX", 0, 2, 0, 1, Q("15 mm")))
sketch14.addConstraint(Sketcher.Constraint("DistanceX", -1, 1, 0, 2, Q("12.5 mm")))
sketch14.addConstraint(Sketcher.Constraint("DistanceY", -1, 1, 0, 2, Q("28.934706 mm")))
sketch14.setExpression("Constraints[9]", "Params.sketch14_width")
pocket11 = doc.addObject("PartDesign::Pocket", "Pocket010")
body.addObject(pocket11)
pocket11.Profile = sketch14
pocket11.setExpression("Length", "Params.pocket11_length")
pocket11.Reversed = True

# Sketch on an angled plane
sketch15 = doc.addObject("Sketcher::SketchObject", "Sketch014")
body.addObject(sketch15)
sketch15.Placement = App.Placement(V(-37.534418, 0, -37.534418), App.Rotation(V(-0.707106781, 0, 0.707106781), V(0, 0.999999999, 0), V(-0.707106781, 0, -0.707106781), "ZXY"))
sketch15.addGeometry(Part.Circle(V(45.96213, 5, 0), V(0, 0, 1), 1.45), False)
sketch15.addGeometry(Part.Circle(V(45.96213, 35, 0), V(0, 0, 1), 1.45), False)
sketch15.addGeometry(Part.Circle(V(-14.03787, 35, 0), V(0, 0, 1), 1.45), False)
sketch15.addGeometry(Part.Circle(V(-14.03787, 5, 0), V(0, 0, 1), 1.45), False)
sketch15.addConstraint(Sketcher.Constraint("Equal", 0, 1))
sketch15.addConstraint(Sketcher.Constraint("Equal", 1, 2))
sketch15.addConstraint(Sketcher.Constraint("Equal", 2, 3))
sketch15.addConstraint(Sketcher.Constraint("Horizontal", 1, 3, 2, 3))
sketch15.addConstraint(Sketcher.Constraint("Horizontal", 0, 3, 3, 3))
sketch15.addConstraint(Sketcher.Constraint("Vertical", 0, 3, 1, 3))
sketch15.addConstraint(Sketcher.Constraint("Vertical", 2, 3, 3, 3))
sketch15.addConstraint(Sketcher.Constraint("Diameter", 0, Q("2.9 mm")))
sketch15.addConstraint(Sketcher.Constraint("DistanceY", -1, 1, 0, 3, Q("5 mm")))
sketch15.addConstraint(Sketcher.Constraint("DistanceY", -1, 1, 1, 3, Q("35 mm")))
sketch15.addConstraint(Sketcher.Constraint("DistanceX", 2, 3, 1, 3, Q("60 mm")))
sketch15.addConstraint(Sketcher.Constraint("DistanceX", -1, 1, 0, 3, Q("45.96213 mm")))
sketch15.setExpression("Constraints[7]", "Params.sketch15_diameter")
pocket12 = doc.addObject("PartDesign::Pocket", "Pocket011")
body.addObject(pocket12)
pocket12.Profile = sketch15
pocket12.setExpression("Length", "Params.pocket12_length")

# Sketch on an angled plane
sketch16 = doc.addObject("Sketcher::SketchObject", "Sketch015")
body.addObject(sketch16)
sketch16.Placement = App.Placement(V(-30.46335, 0, -30.46335), App.Rotation(V(0.707106781, 0, -0.707106781), V(0, 0.999999999, 0), V(0.707106781, 0, 0.707106781), "ZXY"))
sketch16.addGeometry(Part.LineSegment(V(12.41287, 37.814583, 0), V(10.78787, 35, 0)), False)
sketch16.addGeometry(Part.LineSegment(V(10.78787, 35, 0), V(12.41287, 32.185417, 0)), False)
sketch16.addGeometry(Part.LineSegment(V(12.41287, 32.185417, 0), V(15.66287, 32.185417, 0)), False)
sketch16.addGeometry(Part.LineSegment(V(15.66287, 32.185417, 0), V(17.28787, 35, 0)), False)
sketch16.addGeometry(Part.LineSegment(V(17.28787, 35, 0), V(15.66287, 37.814583, 0)), False)
sketch16.addGeometry(Part.LineSegment(V(15.66287, 37.814583, 0), V(12.41287, 37.814583, 0)), False)
sketch16.addGeometry(Part.LineSegment(V(15.66287, 7.814583, 0), V(12.41287, 7.814583, 0)), False)
sketch16.addGeometry(Part.LineSegment(V(12.41287, 7.814583, 0), V(10.78787, 5, 0)), False)
sketch16.addGeometry(Part.LineSegment(V(10.78787, 5, 0), V(12.41287, 2.185417, 0)), False)
sketch16.addGeometry(Part.LineSegment(V(12.41287, 2.185417, 0), V(15.66287, 2.185417, 0)), False)
sketch16.addGeometry(Part.LineSegment(V(15.66287, 2.185417, 0), V(17.28787, 5, 0)), False)
sketch16.addGeometry(Part.LineSegment(V(17.28787, 5, 0), V(15.66287, 7.814583, 0)), False)
sketch16.addGeometry(Part.LineSegment(V(-6.33713, 32.814583, 0), V(-9.58713, 32.814583, 0)), False)
sketch16.addGeometry(Part.LineSegment(V(-9.58713, 32.814583, 0), V(-11.21213, 30, 0)), False)
sketch16.addGeometry(Part.LineSegment(V(-11.21213, 30, 0), V(-9.58713, 27.185417, 0)), False)
sketch16.addGeometry(Part.LineSegment(V(-9.58713, 27.185417, 0), V(-6.33713, 27.185417, 0)), False)
sketch16.addGeometry(Part.LineSegment(V(-6.33713, 27.185417, 0), V(-4.71213, 30, 0)), False)
sketch16.addGeometry(Part.LineSegment(V(-4.71213, 30, 0), V(-6.33713, 32.814583, 0)), False)
sketch16.addGeometry(Part.LineSegment(V(-6.33713, 12.814583, 0), V(-9.58713, 12.814583, 0)), False)
sketch16.addGeometry(Part.LineSegment(V(-9.58713, 12.814583, 0), V(-11.21213, 10, 0)), False)
sketch16.addGeometry(Part.LineSegment(V(-11.21213, 10, 0), V(-9.58713, 7.185417, 0)), False)
sketch16.addGeometry(Part.LineSegment(V(-9.58713, 7.185417, 0), V(-6.33713, 7.185417, 0)), False)
sketch16.addGeometry(Part.LineSegment(V(-6.33713, 7.185417, 0), V(-4.71213, 10, 0)), False)
sketch16.addGeometry(Part.LineSegment(V(-4.71213, 10, 0), V(-6.33713, 12.814583, 0)), False)
sketch16.addConstraint(Sketcher.Constraint("Coincident", 0, 2, 1, 1))
sketch16.addConstraint(Sketcher.Constraint("Coincident", 1, 2, 2, 1))
sketch16.addConstraint(Sketcher.Constraint("Coincident", 2, 2, 3, 1))
sketch16.addConstraint(Sketcher.Constraint("Coincident", 3, 2, 4, 1))
sketch16.addConstraint(Sketcher.Constraint("Coincident", 4, 2, 5, 1))
sketch16.addConstraint(Sketcher.Constraint("Coincident", 5, 2, 0, 1))
sketch16.addConstraint(Sketcher.Constraint("Coincident", 6, 2, 7, 1))
sketch16.addConstraint(Sketcher.Constraint("Coincident", 7, 2, 8, 1))
sketch16.addConstraint(Sketcher.Constraint("Coincident", 8, 2, 9, 1))
sketch16.addConstraint(Sketcher.Constraint("Coincident", 9, 2, 10, 1))
sketch16.addConstraint(Sketcher.Constraint("Coincident", 10, 2, 11, 1))
sketch16.addConstraint(Sketcher.Constraint("Coincident", 11, 2, 6, 1))
sketch16.addConstraint(Sketcher.Constraint("Coincident", 12, 2, 13, 1))
sketch16.addConstraint(Sketcher.Constraint("Coincident", 13, 2, 14, 1))
sketch16.addConstraint(Sketcher.Constraint("Coincident", 14, 2, 15, 1))
sketch16.addConstraint(Sketcher.Constraint("Coincident", 15, 2, 16, 1))
sketch16.addConstraint(Sketcher.Constraint("Coincident", 16, 2, 17, 1))
sketch16.addConstraint(Sketcher.Constraint("Coincident", 17, 2, 12, 1))
sketch16.addConstraint(Sketcher.Constraint("Coincident", 18, 2, 19, 1))
sketch16.addConstraint(Sketcher.Constraint("Coincident", 19, 2, 20, 1))
sketch16.addConstraint(Sketcher.Constraint("Coincident", 20, 2, 21, 1))
sketch16.addConstraint(Sketcher.Constraint("Coincident", 21, 2, 22, 1))
sketch16.addConstraint(Sketcher.Constraint("Coincident", 22, 2, 23, 1))
sketch16.addConstraint(Sketcher.Constraint("Coincident", 23, 2, 18, 1))
sketch16.addConstraint(Sketcher.Constraint("Horizontal", 2))
sketch16.addConstraint(Sketcher.Constraint("Horizontal", 5))
sketch16.addConstraint(Sketcher.Constraint("Horizontal", 6))
sketch16.addConstraint(Sketcher.Constraint("Horizontal", 9))
sketch16.addConstraint(Sketcher.Constraint("Horizontal", 12))
sketch16.addConstraint(Sketcher.Constraint("Horizontal", 15))
sketch16.addConstraint(Sketcher.Constraint("Horizontal", 18))
sketch16.addConstraint(Sketcher.Constraint("Horizontal", 21))
sketch16.addConstraint(Sketcher.Constraint("Parallel", 0, 3))
sketch16.addConstraint(Sketcher.Constraint("Parallel", 1, 4))
sketch16.addConstraint(Sketcher.Constraint("Parallel", 3, 7))
sketch16.addConstraint(Sketcher.Constraint("Parallel", 4, 8))
sketch16.addConstraint(Sketcher.Constraint("Parallel", 7, 10))
sketch16.addConstraint(Sketcher.Constraint("Parallel", 8, 11))
sketch16.addConstraint(Sketcher.Constraint("Parallel", 10, 13))
sketch16.addConstraint(Sketcher.Constraint("Parallel", 11, 14))
sketch16.addConstraint(Sketcher.Constraint("Parallel", 13, 16))
sketch16.addConstraint(Sketcher.Constraint("Parallel", 14, 17))
sketch16.addConstraint(Sketcher.Constraint("Parallel", 16, 19))
sketch16.addConstraint(Sketcher.Constraint("Parallel", 17, 20))
sketch16.addConstraint(Sketcher.Constraint("Parallel", 19, 22))
sketch16.addConstraint(Sketcher.Constraint("Parallel", 20, 23))
sketch16.addConstraint(Sketcher.Constraint("Horizontal", 0, 2, 3, 2))
sketch16.addConstraint(Sketcher.Constraint("Horizontal", 7, 2, 10, 2))
sketch16.addConstraint(Sketcher.Constraint("Horizontal", 13, 2, 16, 2))
sketch16.addConstraint(Sketcher.Constraint("Horizontal", 19, 2, 22, 2))
sketch16.addConstraint(Sketcher.Constraint("Vertical", 2, 2, 4, 2))
sketch16.addConstraint(Sketcher.Constraint("Vertical", 1, 2, 5, 2))
sketch16.addConstraint(Sketcher.Constraint("Vertical", 5, 2, 6, 2))
sketch16.addConstraint(Sketcher.Constraint("Vertical", 0, 2, 7, 2))
sketch16.addConstraint(Sketcher.Constraint("Vertical", 6, 2, 8, 2))
sketch16.addConstraint(Sketcher.Constraint("Vertical", 4, 2, 9, 2))
sketch16.addConstraint(Sketcher.Constraint("Vertical", 12, 2, 14, 2))
sketch16.addConstraint(Sketcher.Constraint("Vertical", 14, 2, 18, 2))
sketch16.addConstraint(Sketcher.Constraint("Vertical", 13, 2, 19, 2))
sketch16.addConstraint(Sketcher.Constraint("Vertical", 18, 2, 20, 2))
sketch16.addConstraint(Sketcher.Constraint("Vertical", 17, 2, 21, 2))
sketch16.addConstraint(Sketcher.Constraint("Equal", 9, 12))
sketch16.addConstraint(Sketcher.Constraint("Equal", 11, 13))
sketch16.addConstraint(Sketcher.Constraint("Angle", 0, Q("-120 deg")))
sketch16.addConstraint(Sketcher.Constraint("DistanceY", -1, 1, 0, 2, Q("35 mm")))
sketch16.addConstraint(Sketcher.Constraint("DistanceY", -1, 1, 7, 2, Q("5 mm")))
sketch16.addConstraint(Sketcher.Constraint("DistanceY", -1, 1, 13, 2, Q("30 mm")))
sketch16.addConstraint(Sketcher.Constraint("DistanceY", -1, 1, 19, 2, Q("10 mm")))
sketch16.addConstraint(Sketcher.Constraint("DistanceX", 12, 2, 1, 2, Q("22 mm")))
sketch16.addConstraint(Sketcher.Constraint("DistanceX", 2, 1, 2, 2, Q("3.25 mm")))
sketch16.addConstraint(Sketcher.Constraint("DistanceX", 0, 2, 3, 2, Q("6.5 mm")))
sketch16.addConstraint(Sketcher.Constraint("DistanceX", -1, 1, 0, 2, Q("10.78787 mm")))
sketch16.setExpression("Constraints[69]", "Params.sketch16_width")
pocket13 = doc.addObject("PartDesign::Pocket", "Pocket012")
body.addObject(pocket13)
pocket13.Profile = sketch16
pocket13.setExpression("Length", "Params.pocket13_length")

# Sketch on an angled plane
sketch17 = doc.addObject("Sketcher::SketchObject", "Sketch016")
body.addObject(sketch17)
sketch17.Placement = App.Placement(V(-32.58467, 0, -32.58467), App.Rotation(V(-0.707106781, 0, 0.707106781), V(0, 0.999999999, 0), V(-0.707106781, 0, -0.707106781), "ZXY"))
sketch17.addGeometry(Part.LineSegment(V(49.21213, 0, 0), V(49.21213, 5, 0)), False)
sketch17.addGeometry(Part.LineSegment(V(49.21213, 5, 0), V(47.58713, 7.814583, 0)), False)
sketch17.addGeometry(Part.LineSegment(V(47.58713, 7.814583, 0), V(44.33713, 7.814583, 0)), False)
sketch17.addGeometry(Part.LineSegment(V(44.33713, 7.814583, 0), V(42.71213, 5, 0)), False)
sketch17.addGeometry(Part.LineSegment(V(42.71213, 5, 0), V(42.71213, 0, 0)), False)
sketch17.addGeometry(Part.LineSegment(V(42.71213, 0, 0), V(49.21213, 0, 0)), False)
sketch17.addGeometry(Part.LineSegment(V(42.71213, 35, 0), V(44.33713, 32.185417, 0)), False)
sketch17.addGeometry(Part.LineSegment(V(44.33713, 32.185417, 0), V(47.58713, 32.185417, 0)), False)
sketch17.addGeometry(Part.LineSegment(V(47.58713, 32.185417, 0), V(49.21213, 35, 0)), False)
sketch17.addGeometry(Part.LineSegment(V(49.21213, 35, 0), V(49.21213, 40, 0)), False)
sketch17.addGeometry(Part.LineSegment(V(49.21213, 40, 0), V(42.71213, 40, 0)), False)
sketch17.addGeometry(Part.LineSegment(V(42.71213, 40, 0), V(42.71213, 35, 0)), False)
sketch17.addConstraint(Sketcher.Constraint("Coincident", 0, 2, 1, 1))
sketch17.addConstraint(Sketcher.Constraint("Coincident", 1, 2, 2, 1))
sketch17.addConstraint(Sketcher.Constraint("Coincident", 2, 2, 3, 1))
sketch17.addConstraint(Sketcher.Constraint("Coincident", 3, 2, 4, 1))
sketch17.addConstraint(Sketcher.Constraint("Coincident", 4, 2, 5, 1))
sketch17.addConstraint(Sketcher.Constraint("Coincident", 5, 2, 0, 1))
sketch17.addConstraint(Sketcher.Constraint("Coincident", 6, 2, 7, 1))
sketch17.addConstraint(Sketcher.Constraint("Coincident", 7, 2, 8, 1))
sketch17.addConstraint(Sketcher.Constraint("Coincident", 8, 2, 9, 1))
sketch17.addConstraint(Sketcher.Constraint("Coincident", 9, 2, 10, 1))
sketch17.addConstraint(Sketcher.Constraint("Coincident", 10, 2, 11, 1))
sketch17.addConstraint(Sketcher.Constraint("Coincident", 11, 2, 6, 1))
sketch17.addConstraint(Sketcher.Constraint("Vertical", 0))
sketch17.addConstraint(Sketcher.Constraint("Horizontal", 2))
sketch17.addConstraint(Sketcher.Constraint("Vertical", 4))
sketch17.addConstraint(Sketcher.Constraint("Horizontal", 5))
sketch17.addConstraint(Sketcher.Constraint("Horizontal", 7))
sketch17.addConstraint(Sketcher.Constraint("Vertical", 9))
sketch17.addConstraint(Sketcher.Constraint("Horizontal", 10))
sketch17.addConstraint(Sketcher.Constraint("Vertical", 11))
sketch17.addConstraint(Sketcher.Constraint("PointOnObject", 4, 2, -1))
sketch17.addConstraint(Sketcher.Constraint("Parallel", 1, 6))
sketch17.addConstraint(Sketcher.Constraint("Parallel", 3, 8))
sketch17.addConstraint(Sketcher.Constraint("Horizontal", 0, 2, 3, 2))
sketch17.addConstraint(Sketcher.Constraint("Horizontal", 8, 2, 11, 2))
sketch17.addConstraint(Sketcher.Constraint("Vertical", 2, 2, 6, 2))
sketch17.addConstraint(Sketcher.Constraint("Vertical", 1, 2, 7, 2))
sketch17.addConstraint(Sketcher.Constraint("Vertical", 5, 2, 8, 2))
sketch17.addConstraint(Sketcher.Constraint("Vertical", 4, 2, 10, 2))
sketch17.addConstraint(Sketcher.Constraint("Equal", 4, 9))
sketch17.addConstraint(Sketcher.Constraint("DistanceY", 0, 1, 0, 2, Q("5 mm")))
sketch17.addConstraint(Sketcher.Constraint("Angle", 1, Q("120 deg")))
sketch17.addConstraint(Sketcher.Constraint("DistanceX", 5, 1, 5, 2, Q("6.5 mm")))
sketch17.addConstraint(Sketcher.Constraint("DistanceY", -1, 1, 8, 2, Q("35 mm")))
sketch17.addConstraint(Sketcher.Constraint("DistanceX", 2, 2, 2, 1, Q("3.25 mm")))
sketch17.addConstraint(Sketcher.Constraint("DistanceX", -1, 1, 0, 2, Q("49.21213 mm")))
sketch17.setExpression("Constraints[30]", "Params.sketch17_height")
sketch17.setExpression("Constraints[32]", "Params.sketch17_width")
sketch17.setExpression("Constraints[34]", "Params.sketch17_width2")
pocket14 = doc.addObject("PartDesign::Pocket", "Pocket013")
body.addObject(pocket14)
pocket14.Profile = sketch17
pocket14.setExpression("Length", "Params.pocket14_length")

# Sketch on XY plane
sketch18 = doc.addObject("Sketcher::SketchObject", "Sketch017")
body.addObject(sketch18)
sketch18.AttachmentSupport = (doc.XY_Plane, [""])
sketch18.MapMode = "FlatFace"
sketch18.AttachmentOffset = App.Placement(V(0, 0, 74.434706), App.Rotation())
sketch18.addGeometry(Part.LineSegment(V(-77.693409, 30, 0), V(-77.693409, 10, 0)), False)
sketch18.addGeometry(Part.LineSegment(V(-77.693409, 10, 0), V(12.306591, 10, 0)), False)
sketch18.addGeometry(Part.LineSegment(V(12.306591, 10, 0), V(12.306591, 30, 0)), False)
sketch18.addGeometry(Part.LineSegment(V(12.306591, 30, 0), V(-77.693409, 30, 0)), False)
sketch18.addConstraint(Sketcher.Constraint("Coincident", 0, 2, 1, 1))
sketch18.addConstraint(Sketcher.Constraint("Coincident", 1, 2, 2, 1))
sketch18.addConstraint(Sketcher.Constraint("Coincident", 2, 2, 3, 1))
sketch18.addConstraint(Sketcher.Constraint("Coincident", 3, 2, 0, 1))
sketch18.addConstraint(Sketcher.Constraint("Vertical", 0))
sketch18.addConstraint(Sketcher.Constraint("Horizontal", 1))
sketch18.addConstraint(Sketcher.Constraint("Vertical", 2))
sketch18.addConstraint(Sketcher.Constraint("Horizontal", 3))
sketch18.addConstraint(Sketcher.Constraint("DistanceX", 1, 1, 1, 2, Q("90 mm")))
sketch18.addConstraint(Sketcher.Constraint("DistanceY", 0, 2, 0, 1, Q("20 mm")))
sketch18.addConstraint(Sketcher.Constraint("DistanceY", -1, 1, 0, 2, Q("10 mm")))
sketch18.addConstraint(Sketcher.Constraint("DistanceX", 0, 2, -1, 1, Q("77.693409 mm")))
sketch18.setExpression("Constraints[8]", "Params.sketch18_width")
sketch18.setExpression("Constraints[9]", "Params.sketch18_height")
pocket15 = doc.addObject("PartDesign::Pocket", "Pocket014")
body.addObject(pocket15)
pocket15.Profile = sketch18
pocket15.setExpression("Length", "Params.pocket15_length")

# Sketch on YZ plane
sketch19 = doc.addObject("Sketcher::SketchObject", "Sketch018")
body.addObject(sketch19)
sketch19.AttachmentSupport = (doc.YZ_Plane, [""])
sketch19.MapMode = "FlatFace"
sketch19.AttachmentOffset = App.Placement(V(0, 0, -77.69341), App.Rotation())
sketch19.addGeometry(Part.LineSegment(V(20, 13.968076, 0), V(10, 28.934706, 0)), False)
sketch19.addGeometry(Part.LineSegment(V(10, 28.934706, 0), V(30, 28.934706, 0)), False)
sketch19.addGeometry(Part.LineSegment(V(30, 28.934706, 0), V(20, 13.968076, 0)), False)
sketch19.addConstraint(Sketcher.Constraint("Coincident", 0, 2, 1, 1))
sketch19.addConstraint(Sketcher.Constraint("Coincident", 1, 2, 2, 1))
sketch19.addConstraint(Sketcher.Constraint("Coincident", 2, 2, 0, 1))
sketch19.addConstraint(Sketcher.Constraint("Horizontal", 1))
sketch19.addConstraint(Sketcher.Constraint("Equal", 0, 2))
sketch19.addConstraint(Sketcher.Constraint("DistanceX", 1, 1, 1, 2, Q("20 mm")))
sketch19.addConstraint(Sketcher.Constraint("Distance", 0, Q("18 mm")))
sketch19.addConstraint(Sketcher.Constraint("DistanceX", -1, 1, 0, 2, Q("10 mm")))
sketch19.addConstraint(Sketcher.Constraint("DistanceY", -1, 1, 0, 2, Q("28.934706 mm")))
sketch19.setExpression("Constraints[5]", "Params.sketch19_width")
sketch19.setExpression("Constraints[6]", "Params.sketch19_length")
pocket16 = doc.addObject("PartDesign::Pocket", "Pocket015")
body.addObject(pocket16)
pocket16.Profile = sketch19
pocket16.setExpression("Length", "Params.pocket16_length")
pocket16.Reversed = True

# Sketch on XZ plane
sketch20 = doc.addObject("Sketcher::SketchObject", "Sketch019")
body.addObject(sketch20)
sketch20.AttachmentSupport = (doc.XZ_Plane, [""])
sketch20.MapMode = "FlatFace"
sketch20.AttachmentOffset = App.Placement(V(0, 0, -40), App.Rotation())
sketch20.addGeometry(Part.LineSegment(V(-109.503541, 74.434706, 0), V(-109.503541, 43.934706, 0)), False)
sketch20.addGeometry(Part.LineSegment(V(-109.503541, 43.934706, 0), V(-119.503541, 49.434706, 0)), False)
sketch20.addGeometry(Part.LineSegment(V(-119.503541, 49.434706, 0), V(-119.503541, 74.434706, 0)), False)
sketch20.addGeometry(Part.LineSegment(V(-119.503541, 74.434706, 0), V(-109.503541, 74.434706, 0)), False)
sketch20.addConstraint(Sketcher.Constraint("Coincident", 0, 2, 1, 1))
sketch20.addConstraint(Sketcher.Constraint("Coincident", 1, 2, 2, 1))
sketch20.addConstraint(Sketcher.Constraint("Coincident", 2, 2, 3, 1))
sketch20.addConstraint(Sketcher.Constraint("Coincident", 3, 2, 0, 1))
sketch20.addConstraint(Sketcher.Constraint("Vertical", 0))
sketch20.addConstraint(Sketcher.Constraint("Vertical", 2))
sketch20.addConstraint(Sketcher.Constraint("Horizontal", 3))
sketch20.addConstraint(Sketcher.Constraint("DistanceX", 3, 1, 3, 2, Q("10 mm")))
sketch20.addConstraint(Sketcher.Constraint("DistanceY", 2, 1, 2, 2, Q("25 mm")))
sketch20.addConstraint(Sketcher.Constraint("DistanceY", 0, 2, 0, 1, Q("30.5 mm")))
sketch20.addConstraint(Sketcher.Constraint("DistanceX", 0, 2, -1, 1, Q("109.503541 mm")))
sketch20.addConstraint(Sketcher.Constraint("DistanceY", -1, 1, 0, 2, Q("43.934706 mm")))
sketch20.setExpression("Constraints[7]", "Params.sketch20_width")
sketch20.setExpression("Constraints[8]", "Params.sketch20_height")
sketch20.setExpression("Constraints[9]", "Params.sketch20_height2")
pad4 = doc.addObject("PartDesign::Pad", "Pad003")
body.addObject(pad4)
pad4.Profile = sketch20
pad4.setExpression("Length", "Params.pad4_length")
doc.recompute()

chamfer = doc.addObject("PartDesign::Chamfer", "Chamfer")
body.addObject(chamfer)
chamfer.Base = (pad4, edges_at(pad4, [
    (-88.201, 0, 67.172),
    (-98.6, 0, 62.713),
    (-101.186, 0, 51.698),
    (-90.787, 0, 56.156),
    (-88.201, 40, 67.172),
    (-90.787, 40, 56.156),
    (-101.186, 40, 51.698),
    (-98.6, 40, 62.713),
]))
chamfer.setExpression("Size", "Params.chamfer_size")

doc.recompute()
